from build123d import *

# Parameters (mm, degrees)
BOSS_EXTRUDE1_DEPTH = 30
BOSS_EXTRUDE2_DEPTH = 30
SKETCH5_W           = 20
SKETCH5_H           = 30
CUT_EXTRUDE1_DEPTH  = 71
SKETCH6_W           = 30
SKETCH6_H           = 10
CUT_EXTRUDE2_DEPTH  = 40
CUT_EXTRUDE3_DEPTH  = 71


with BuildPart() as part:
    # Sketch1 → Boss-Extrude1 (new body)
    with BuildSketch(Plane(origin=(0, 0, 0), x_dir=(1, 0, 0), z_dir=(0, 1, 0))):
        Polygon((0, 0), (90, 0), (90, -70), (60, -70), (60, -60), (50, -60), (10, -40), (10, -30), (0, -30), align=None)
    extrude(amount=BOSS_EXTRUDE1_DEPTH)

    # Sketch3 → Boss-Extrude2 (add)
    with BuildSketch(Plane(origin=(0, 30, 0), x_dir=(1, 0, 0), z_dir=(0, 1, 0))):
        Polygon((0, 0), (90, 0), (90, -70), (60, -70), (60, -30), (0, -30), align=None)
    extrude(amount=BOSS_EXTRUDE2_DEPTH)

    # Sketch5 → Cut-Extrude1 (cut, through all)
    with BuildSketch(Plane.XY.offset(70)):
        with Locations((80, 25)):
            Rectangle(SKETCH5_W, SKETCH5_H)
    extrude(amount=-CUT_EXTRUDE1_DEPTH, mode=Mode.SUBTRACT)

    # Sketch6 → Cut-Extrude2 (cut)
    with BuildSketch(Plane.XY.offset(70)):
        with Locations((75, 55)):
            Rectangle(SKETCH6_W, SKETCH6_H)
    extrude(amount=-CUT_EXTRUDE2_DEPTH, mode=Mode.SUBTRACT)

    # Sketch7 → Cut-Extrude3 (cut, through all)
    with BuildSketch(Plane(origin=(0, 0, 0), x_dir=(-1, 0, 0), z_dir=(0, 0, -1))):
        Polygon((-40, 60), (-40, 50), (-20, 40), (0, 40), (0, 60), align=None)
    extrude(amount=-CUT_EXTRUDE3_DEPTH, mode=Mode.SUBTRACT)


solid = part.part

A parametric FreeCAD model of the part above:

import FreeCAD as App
import Part
import Sketcher

V = App.Vector
Q = App.Units.Quantity


def add_polygon(sketch, points):
    """Adds a closed chain of lines whose ends are joined by coincident constraints."""
    first, n = sketch.GeometryCount, len(points)
    for a, b in zip(points, points[1:] + points[:1]):
        sketch.addGeometry(Part.LineSegment(App.Vector(*a, 0), App.Vector(*b, 0)), False)
    for i in range(n):
        sketch.addConstraint(Sketcher.Constraint("Coincident", first + i, 2, first + (i + 1) % n, 1))

doc = App.newDocument("Part")
body = doc.addObject("PartDesign::Body", "Body")

sketch1 = body.newObject("Sketcher::SketchObject", "Sketch")
sketch1.AttachmentSupport = (doc.getObject("XZ_Plane"), [""])
sketch1.MapMode = "FlatFace"
add_polygon(sketch1, [(90, 0), (0, 0), (0, 30), (10, 30), (10, 40), (50, 60), (60, 60), (60, 70), (90, 70)])
sketch1.addConstraint(Sketcher.Constraint("Horizontal", 0))
sketch1.addConstraint(Sketcher.Constraint("Vertical", 1))
sketch1.addConstraint(Sketcher.Constraint("Horizontal", 2))
sketch1.addConstraint(Sketcher.Constraint("Vertical", 3))
sketch1.addConstraint(Sketcher.Constraint("Horizontal", 5))
sketch1.addConstraint(Sketcher.Constraint("Vertical", 6))
sketch1.addConstraint(Sketcher.Constraint("Horizontal", 7))
sketch1.addConstraint(Sketcher.Constraint("Vertical", 8))
sketch1.addConstraint(Sketcher.Constraint("Coincident", 0, 2, -1, 1))
sketch1.addConstraint(Sketcher.Constraint("Equal", 2, 5))
sketch1.addConstraint(Sketcher.Constraint("Equal", 7, 1))
sketch1.addConstraint(Sketcher.Constraint("Equal", 5, 3))
sketch1.addConstraint(Sketcher.Constraint("Equal", 3, 6))
sketch1.addConstraint(Sketcher.Constraint("DistanceX", 0, 2, 0, 1, Q("90 mm")))
sketch1.addConstraint(Sketcher.Constraint("DistanceX", 2, 1, 2, 2, Q("10 mm")))
sketch1.addConstraint(Sketcher.Constraint("DistanceX", 7, 1, 7, 2, Q("30 mm")))
sketch1.addConstraint(Sketcher.Constraint("DistanceY", 8, 2, 8, 1, Q("70 mm")))
pad1 = body.newObject("PartDesign::Pad", "Pad")
pad1.Profile = sketch1
pad1.Length = 30
pad1.Reversed = True

sketch2 = body.newObject("Sketcher::SketchObject", "Sketch001")
sketch2.AttachmentSupport = (doc.getObject("XZ_Plane"), [""])
sketch2.MapMode = "FlatFace"
sketch2.AttachmentOffset = App.Placement(V(0, 0, -30), App.Rotation())
add_polygon(sketch2, [(90, 0), (0, 0), (0, 30), (60, 30), (60, 70), (90, 70)])
sketch2.addConstraint(Sketcher.Constraint("Horizontal", 0))
sketch2.addConstraint(Sketcher.Constraint("Vertical", 1))
sketch2.addConstraint(Sketcher.Constraint("Horizontal", 2))
sketch2.addConstraint(Sketcher.Constraint("Vertical", 3))
sketch2.addConstraint(Sketcher.Constraint("Horizontal", 4))
sketch2.addConstraint(Sketcher.Constraint("Vertical", 5))
sketch2.addConstraint(Sketcher.Constraint("Coincident", 0, 2, -1, 1))
sketch2.addConstraint(Sketcher.Constraint("Equal", 4, 1))
sketch2.addConstraint(Sketcher.Constraint("DistanceX", 0, 2, 0, 1, Q("90 mm")))
sketch2.addConstraint(Sketcher.Constraint("DistanceX", 2, 1, 2, 2, Q("60 mm")))
sketch2.addConstraint(Sketcher.Constraint("DistanceY", 3, 1, 3, 2, Q("40 mm")))
pad2 = body.newObject("PartDesign::Pad", "Pad001")
pad2.Profile = sketch2
pad2.Length = 30
pad2.Reversed = True

sketch3 = body.newObject("Sketcher::SketchObject", "Sketch002")
sketch3.AttachmentSupport = (doc.getObject("XY_Plane"), [""])
sketch3.MapMode = "FlatFace"
sketch3.AttachmentOffset = App.Placement(V(0, 0, 70), App.Rotation())
add_polygon(sketch3, [(70, 40), (70, 10), (90, 10), (90, 40)])
sketch3.addConstraint(Sketcher.Constraint("Vertical", 0))
sketch3.addConstraint(Sketcher.Constraint("Horizontal", 1))
sketch3.addConstraint(Sketcher.Constraint("Vertical", 2))
sketch3.addConstraint(Sketcher.Constraint("Horizontal", 3))
sketch3.addConstraint(Sketcher.Constraint("DistanceX", 1, 1, 1, 2, Q("20 mm")))
sketch3.addConstraint(Sketcher.Constraint("DistanceY", 0, 2, 0, 1, Q("30 mm")))
sketch3.addConstraint(Sketcher.Constraint("DistanceX", -1, 1, 0, 2, Q("70 mm")))
sketch3.addConstraint(Sketcher.Constraint("DistanceY", -1, 1, 0, 2, Q("10 mm")))
pocket1 = body.newObject("PartDesign::Pocket", "Pocket")
pocket1.Profile = sketch3
pocket1.Type = "ThroughAll"

sketch4 = body.newObject("Sketcher::SketchObject", "Sketch003")
sketch4.AttachmentSupport = (doc.getObject("XY_Plane"), [""])
sketch4.MapMode = "FlatFace"
sketch4.AttachmentOffset = App.Placement(V(0, 0, 70), App.Rotation())
add_polygon(sketch4, [(60, 60), (60, 50), (90, 50), (90, 60)])
sketch4.addConstraint(Sketcher.Constraint("Vertical", 0))
sketch4.addConstraint(Sketcher.Constraint("Horizontal", 1))
sketch4.addConstraint(Sketcher.Constraint("Vertical", 2))
sketch4.addConstraint(Sketcher.Constraint("Horizontal", 3))
sketch4.addConstraint(Sketcher.Constraint("DistanceX", 1, 1, 1, 2, Q("30 mm")))
sketch4.addConstraint(Sketcher.Constraint("DistanceY", 0, 2, 0, 1, Q("10 mm")))
sketch4.addConstraint(Sketcher.Constraint("DistanceX", -1, 1, 0, 2, Q("60 mm")))
sketch4.addConstraint(Sketcher.Constraint("DistanceY", -1, 1, 0, 2, Q("50 mm")))
pocket2 = body.newObject("PartDesign::Pocket", "Pocket001")
pocket2.Profile = sketch4
pocket2.Length = 40

sketch5 = body.newObject("Sketcher::SketchObject", "Sketch004")
sketch5.AttachmentSupport = (doc.getObject("XY_Plane"), [""])
sketch5.MapMode = "FlatFace"
add_polygon(sketch5, [(40, 60), (40, 50), (20, 40), (0, 40), (0, 60)])
sketch5.addConstraint(Sketcher.Constraint("Vertical", 0))
sketch5.addConstraint(Sketcher.Constraint("Horizontal", 2))
sketch5.addConstraint(Sketcher.Constraint("Vertical", 3))
sketch5.addConstraint(Sketcher.Constraint("Horizontal", 4))
sketch5.addConstraint(Sketcher.Constraint("PointOnObject", 2, 2, -2))
sketch5.addConstraint(Sketcher.Constraint("Equal", 2, 3))
sketch5.addConstraint(Sketcher.Constraint("DistanceX", 2, 2, 2, 1, Q("20 mm")))
sketch5.addConstraint(Sketcher.Constraint("DistanceX", 4, 1, 4, 2, Q("40 mm")))
sketch5.addConstraint(Sketcher.Constraint("DistanceY", 0, 2, 0, 1, Q("10 mm")))
sketch5.addConstraint(Sketcher.Constraint("DistanceY", -1, 1, 0, 2, Q("50 mm")))
pocket3 = body.newObject("PartDesign::Pocket", "Pocket002")
pocket3.Profile = sketch5
pocket3.Type = "ThroughAll"
pocket3.Reversed = True

doc.recompute()
